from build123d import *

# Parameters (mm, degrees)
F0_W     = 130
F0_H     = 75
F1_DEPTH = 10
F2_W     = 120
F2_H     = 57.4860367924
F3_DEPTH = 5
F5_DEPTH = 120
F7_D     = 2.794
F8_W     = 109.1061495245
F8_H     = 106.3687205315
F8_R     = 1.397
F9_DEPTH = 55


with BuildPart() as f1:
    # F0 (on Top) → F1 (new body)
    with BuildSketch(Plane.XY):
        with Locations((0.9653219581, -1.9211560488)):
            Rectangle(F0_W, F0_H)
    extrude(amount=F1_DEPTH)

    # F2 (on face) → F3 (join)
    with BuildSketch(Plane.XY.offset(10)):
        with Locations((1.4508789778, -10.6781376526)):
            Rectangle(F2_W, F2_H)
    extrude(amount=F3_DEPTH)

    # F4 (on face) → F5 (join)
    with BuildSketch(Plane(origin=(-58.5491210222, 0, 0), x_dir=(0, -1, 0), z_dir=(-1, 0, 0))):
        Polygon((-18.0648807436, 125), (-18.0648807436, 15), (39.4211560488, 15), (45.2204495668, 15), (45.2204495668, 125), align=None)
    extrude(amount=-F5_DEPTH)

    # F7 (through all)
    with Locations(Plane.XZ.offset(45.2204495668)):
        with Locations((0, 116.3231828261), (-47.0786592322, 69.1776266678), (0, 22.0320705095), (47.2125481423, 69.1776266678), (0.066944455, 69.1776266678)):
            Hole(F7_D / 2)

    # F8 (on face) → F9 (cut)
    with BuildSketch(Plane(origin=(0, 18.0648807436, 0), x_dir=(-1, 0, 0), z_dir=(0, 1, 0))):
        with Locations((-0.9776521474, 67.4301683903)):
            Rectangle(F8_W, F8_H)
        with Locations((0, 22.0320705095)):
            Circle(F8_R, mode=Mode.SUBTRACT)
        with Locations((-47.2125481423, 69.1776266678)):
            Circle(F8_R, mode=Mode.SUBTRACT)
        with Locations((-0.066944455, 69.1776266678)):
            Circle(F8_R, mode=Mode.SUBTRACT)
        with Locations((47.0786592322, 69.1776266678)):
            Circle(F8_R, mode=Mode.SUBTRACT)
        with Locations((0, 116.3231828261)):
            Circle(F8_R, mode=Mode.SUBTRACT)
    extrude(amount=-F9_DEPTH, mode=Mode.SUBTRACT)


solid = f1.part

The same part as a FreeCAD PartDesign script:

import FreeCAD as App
import Part
import Sketcher

V = App.Vector


def add_polygon(sketch, points):
    """Adds a closed chain of lines whose ends are joined by coincident constraints."""
    first, n = sketch.GeometryCount, len(points)
    for a, b in zip(points, points[1:] + points[:1]):
        sketch.addGeometry(Part.LineSegment(App.Vector(*a, 0), App.Vector(*b, 0)), False)
    for i in range(n):
        sketch.addConstraint(Sketcher.Constraint("Coincident", first + i, 2, first + (i + 1) % n, 1))

doc = App.newDocument("Part")
body = doc.addObject("PartDesign::Body", "Body")

# Sketch on XY plane
sketch1 = body.newObject("Sketcher::SketchObject", "Sketch")
sketch1.AttachmentSupport = (doc.getObject("XY_Plane"), [""])
sketch1.MapMode = "FlatFace"
add_polygon(sketch1, [(-64.034678, 35.578844), (-64.034678, -39.421156), (65.965322, -39.421156), (65.965322, 35.578844)])  # lines 0-3
sketch1.addConstraint(Sketcher.Constraint("Vertical", 0))
sketch1.addConstraint(Sketcher.Constraint("Horizontal", 1))
sketch1.addConstraint(Sketcher.Constraint("Vertical", 2))
sketch1.addConstraint(Sketcher.Constraint("Horizontal", 3))
sketch1.addConstraint(Sketcher.Constraint("DistanceX", 1, 1, 1, 2, 130.0))
sketch1.addConstraint(Sketcher.Constraint("DistanceY", 0, 2, 0, 1, 75.0))
sketch1.addConstraint(Sketcher.Constraint("DistanceX", 0, 2, -1, 1, 64.034678))
sketch1.addConstraint(Sketcher.Constraint("DistanceY", 0, 2, -1, 1, 39.421156))
pad1 = body.newObject("PartDesign::Pad", "Pad")
pad1.Profile = sketch1
pad1.Length = 10

# Sketch on XY plane
sketch2 = body.newObject("Sketcher::SketchObject", "Sketch001")
sketch2.AttachmentSupport = (doc.getObject("XY_Plane"), [""])
sketch2.MapMode = "FlatFace"
sketch2.AttachmentOffset = App.Placement(V(0, 0, 10), App.Rotation())
add_polygon(sketch2, [(-58.549121, 18.064881), (-58.549121, -39.421156), (61.450879, -39.421156), (61.450879, 18.064881)])  # lines 0-3
sketch2.addConstraint(Sketcher.Constraint("Vertical", 0))
sketch2.addConstraint(Sketcher.Constraint("Horizontal", 1))
sketch2.addConstraint(Sketcher.Constraint("Vertical", 2))
sketch2.addConstraint(Sketcher.Constraint("Horizontal", 3))
sketch2.addConstraint(Sketcher.Constraint("DistanceX", 1, 1, 1, 2, 120.0))
sketch2.addConstraint(Sketcher.Constraint("DistanceY", 0, 2, 0, 1, 57.486037))
sketch2.addConstraint(Sketcher.Constraint("DistanceX", 0, 2, -1, 1, 58.549121))
sketch2.addConstraint(Sketcher.Constraint("DistanceY", -1, 1, 2, 2, 18.064881))
pad2 = body.newObject("PartDesign::Pad", "Pad001")
pad2.Profile = sketch2
pad2.Length = 5

# Sketch on YZ plane
sketch3 = body.newObject("Sketcher::SketchObject", "Sketch002")
sketch3.AttachmentSupport = (doc.getObject("YZ_Plane"), [""])
sketch3.MapMode = "FlatFace"
sketch3.AttachmentOffset = App.Placement(V(0, 0, -58.549121), App.Rotation())
add_polygon(sketch3, [(18.064881, 125), (18.064881, 15), (-45.22045, 15), (-45.22045, 125)])  # lines 0-3
sketch3.addConstraint(Sketcher.Constraint("Vertical", 0))
sketch3.addConstraint(Sketcher.Constraint("Horizontal", 1))
sketch3.addConstraint(Sketcher.Constraint("Vertical", 2))
sketch3.addConstraint(Sketcher.Constraint("Horizontal", 3))
sketch3.addConstraint(Sketcher.Constraint("DistanceY", 0, 2, 0, 1, 110.0))
sketch3.addConstraint(Sketcher.Constraint("DistanceY", -1, 1, 0, 2, 15.0))
sketch3.addConstraint(Sketcher.Constraint("DistanceX", 1, 2, 1, 1, 63.28533))
sketch3.addConstraint(Sketcher.Constraint("DistanceX", -1, 1, 0, 2, 18.064881))
pad3 = body.newObject("PartDesign::Pad", "Pad002")
pad3.Profile = sketch3
pad3.Length = 120

# Sketch on XZ plane
sketch4 = body.newObject("Sketcher::SketchObject", "Sketch003")
sketch4.AttachmentSupport = (doc.getObject("XZ_Plane"), [""])
sketch4.MapMode = "FlatFace"
sketch4.AttachmentOffset = App.Placement(V(0, 0, 45.22045), App.Rotation())
sketch4.addGeometry(Part.Circle(V(0, 116.323183, 0), V(0, 0, 1), 1.397), False)
sketch4.addGeometry(Part.Circle(V(-47.078659, 69.177627, 0), V(0, 0, 1), 1.397), False)
sketch4.addGeometry(Part.Circle(V(0, 22.032071, 0), V(0, 0, 1), 1.397), False)
sketch4.addGeometry(Part.Circle(V(47.212548, 69.177627, 0), V(0, 0, 1), 1.397), False)
sketch4.addGeometry(Part.Circle(V(0.066944, 69.177627, 0), V(0, 0, 1), 1.397), False)
sketch4.addConstraint(Sketcher.Constraint("Equal", 0, 1))
sketch4.addConstraint(Sketcher.Constraint("Equal", 1, 2))
sketch4.addConstraint(Sketcher.Constraint("Equal", 2, 3))
sketch4.addConstraint(Sketcher.Constraint("Equal", 3, 4))
sketch4.addConstraint(Sketcher.Constraint("PointOnObject", 0, 3, -2))
sketch4.addConstraint(Sketcher.Constraint("PointOnObject", 2, 3, -2))
sketch4.addConstraint(Sketcher.Constraint("Horizontal", 1, 3, 3, 3))
sketch4.addConstraint(Sketcher.Constraint("Horizontal", 3, 3, 4, 3))
sketch4.addConstraint(Sketcher.Constraint("Diameter", 0, 2.794))
sketch4.addConstraint(Sketcher.Constraint("DistanceX", 1, 3, -1, 1, 47.078659))
sketch4.addConstraint(Sketcher.Constraint("DistanceY", -1, 1, 2, 3, 22.032071))
sketch4.addConstraint(Sketcher.Constraint("DistanceX", -1, 1, 3, 3, 47.212548))
sketch4.addConstraint(Sketcher.Constraint("DistanceY", -1, 1, 0, 3, 116.323183))
sketch4.addConstraint(Sketcher.Constraint("DistanceY", -1, 1, 1, 3, 69.177627))
sketch4.addConstraint(Sketcher.Constraint("DistanceX", -1, 1, 4, 3, 0.066944))
doc.recompute()
hole = body.newObject("PartDesign::Hole", "Hole")
hole.Profile = sketch4
hole.ThreadType = "None"
hole.Diameter = 2.794
hole.DepthType = "ThroughAll"

# Sketch on XZ plane
sketch5 = body.newObject("Sketcher::SketchObject", "Sketch004")
sketch5.AttachmentSupport = (doc.getObject("XZ_Plane"), [""])
sketch5.MapMode = "FlatFace"
sketch5.AttachmentOffset = App.Placement(V(0, 0, -18.064881), App.Rotation())
add_polygon(sketch5, [(55.530727, 120.614529), (55.530727, 14.245808), (-53.575423, 14.245808), (-53.575423, 120.614529)])  # lines 0-3
sketch5.addGeometry(Part.Circle(V(0, 22.032071, 0), V(0, 0, 1), 1.397), False)  # 4
sketch5.addGeometry(Part.Circle(V(47.212548, 69.177627, 0), V(0, 0, 1), 1.397), False)  # 5
sketch5.addGeometry(Part.Circle(V(0.066944, 69.177627, 0), V(0, 0, 1), 1.397), False)  # 6
sketch5.addGeometry(Part.Circle(V(-47.078659, 69.177627, 0), V(0, 0, 1), 1.397), False)  # 7
sketch5.addGeometry(Part.Circle(V(0, 116.323183, 0), V(0, 0, 1), 1.397), False)  # 8
sketch5.addConstraint(Sketcher.Constraint("Vertical", 0))
sketch5.addConstraint(Sketcher.Constraint("Horizontal", 1))
sketch5.addConstraint(Sketcher.Constraint("Vertical", 2))
sketch5.addConstraint(Sketcher.Constraint("Horizontal", 3))
sketch5.addConstraint(Sketcher.Constraint("Equal", 4, 5))
sketch5.addConstraint(Sketcher.Constraint("Equal", 5, 6))
sketch5.addConstraint(Sketcher.Constraint("Equal", 6, 7))
sketch5.addConstraint(Sketcher.Constraint("Equal", 7, 8))
sketch5.addConstraint(Sketcher.Constraint("PointOnObject", 4, 3, -2))
sketch5.addConstraint(Sketcher.Constraint("PointOnObject", 8, 3, -2))
sketch5.addConstraint(Sketcher.Constraint("Horizontal", 5, 3, 6, 3))
sketch5.addConstraint(Sketcher.Constraint("Horizontal", 6, 3, 7, 3))
sketch5.addConstraint(Sketcher.Constraint("Diameter", 4, 2.794))
sketch5.addConstraint(Sketcher.Constraint("DistanceX", 1, 2, 1, 1, 109.10615))
sketch5.addConstraint(Sketcher.Constraint("DistanceY", 0, 2, 0, 1, 106.368721))
sketch5.addConstraint(Sketcher.Constraint("DistanceY", 7, 3, 2, 2, 51.436902))
sketch5.addConstraint(Sketcher.Constraint("DistanceY", -1, 1, 4, 3, 22.032071))
sketch5.addConstraint(Sketcher.Constraint("DistanceX", -1, 1, 5, 3, 47.212548))
sketch5.addConstraint(Sketcher.Constraint("DistanceX", 7, 3, -1, 1, 47.078659))
sketch5.addConstraint(Sketcher.Constraint("DistanceY", -1, 1, 0, 2, 14.245808))
sketch5.addConstraint(Sketcher.Constraint("DistanceX", 5, 3, 0, 2, 8.318179))
sketch5.addConstraint(Sketcher.Constraint("DistanceX", -1, 1, 6, 3, 0.066944))
sketch5.addConstraint(Sketcher.Constraint("DistanceY", -1, 1, 8, 3, 116.323183))
pocket1 = body.newObject("PartDesign::Pocket", "Pocket")
pocket1.Profile = sketch5
pocket1.Length = 55
pocket1.Reversed = True

doc.recompute()
